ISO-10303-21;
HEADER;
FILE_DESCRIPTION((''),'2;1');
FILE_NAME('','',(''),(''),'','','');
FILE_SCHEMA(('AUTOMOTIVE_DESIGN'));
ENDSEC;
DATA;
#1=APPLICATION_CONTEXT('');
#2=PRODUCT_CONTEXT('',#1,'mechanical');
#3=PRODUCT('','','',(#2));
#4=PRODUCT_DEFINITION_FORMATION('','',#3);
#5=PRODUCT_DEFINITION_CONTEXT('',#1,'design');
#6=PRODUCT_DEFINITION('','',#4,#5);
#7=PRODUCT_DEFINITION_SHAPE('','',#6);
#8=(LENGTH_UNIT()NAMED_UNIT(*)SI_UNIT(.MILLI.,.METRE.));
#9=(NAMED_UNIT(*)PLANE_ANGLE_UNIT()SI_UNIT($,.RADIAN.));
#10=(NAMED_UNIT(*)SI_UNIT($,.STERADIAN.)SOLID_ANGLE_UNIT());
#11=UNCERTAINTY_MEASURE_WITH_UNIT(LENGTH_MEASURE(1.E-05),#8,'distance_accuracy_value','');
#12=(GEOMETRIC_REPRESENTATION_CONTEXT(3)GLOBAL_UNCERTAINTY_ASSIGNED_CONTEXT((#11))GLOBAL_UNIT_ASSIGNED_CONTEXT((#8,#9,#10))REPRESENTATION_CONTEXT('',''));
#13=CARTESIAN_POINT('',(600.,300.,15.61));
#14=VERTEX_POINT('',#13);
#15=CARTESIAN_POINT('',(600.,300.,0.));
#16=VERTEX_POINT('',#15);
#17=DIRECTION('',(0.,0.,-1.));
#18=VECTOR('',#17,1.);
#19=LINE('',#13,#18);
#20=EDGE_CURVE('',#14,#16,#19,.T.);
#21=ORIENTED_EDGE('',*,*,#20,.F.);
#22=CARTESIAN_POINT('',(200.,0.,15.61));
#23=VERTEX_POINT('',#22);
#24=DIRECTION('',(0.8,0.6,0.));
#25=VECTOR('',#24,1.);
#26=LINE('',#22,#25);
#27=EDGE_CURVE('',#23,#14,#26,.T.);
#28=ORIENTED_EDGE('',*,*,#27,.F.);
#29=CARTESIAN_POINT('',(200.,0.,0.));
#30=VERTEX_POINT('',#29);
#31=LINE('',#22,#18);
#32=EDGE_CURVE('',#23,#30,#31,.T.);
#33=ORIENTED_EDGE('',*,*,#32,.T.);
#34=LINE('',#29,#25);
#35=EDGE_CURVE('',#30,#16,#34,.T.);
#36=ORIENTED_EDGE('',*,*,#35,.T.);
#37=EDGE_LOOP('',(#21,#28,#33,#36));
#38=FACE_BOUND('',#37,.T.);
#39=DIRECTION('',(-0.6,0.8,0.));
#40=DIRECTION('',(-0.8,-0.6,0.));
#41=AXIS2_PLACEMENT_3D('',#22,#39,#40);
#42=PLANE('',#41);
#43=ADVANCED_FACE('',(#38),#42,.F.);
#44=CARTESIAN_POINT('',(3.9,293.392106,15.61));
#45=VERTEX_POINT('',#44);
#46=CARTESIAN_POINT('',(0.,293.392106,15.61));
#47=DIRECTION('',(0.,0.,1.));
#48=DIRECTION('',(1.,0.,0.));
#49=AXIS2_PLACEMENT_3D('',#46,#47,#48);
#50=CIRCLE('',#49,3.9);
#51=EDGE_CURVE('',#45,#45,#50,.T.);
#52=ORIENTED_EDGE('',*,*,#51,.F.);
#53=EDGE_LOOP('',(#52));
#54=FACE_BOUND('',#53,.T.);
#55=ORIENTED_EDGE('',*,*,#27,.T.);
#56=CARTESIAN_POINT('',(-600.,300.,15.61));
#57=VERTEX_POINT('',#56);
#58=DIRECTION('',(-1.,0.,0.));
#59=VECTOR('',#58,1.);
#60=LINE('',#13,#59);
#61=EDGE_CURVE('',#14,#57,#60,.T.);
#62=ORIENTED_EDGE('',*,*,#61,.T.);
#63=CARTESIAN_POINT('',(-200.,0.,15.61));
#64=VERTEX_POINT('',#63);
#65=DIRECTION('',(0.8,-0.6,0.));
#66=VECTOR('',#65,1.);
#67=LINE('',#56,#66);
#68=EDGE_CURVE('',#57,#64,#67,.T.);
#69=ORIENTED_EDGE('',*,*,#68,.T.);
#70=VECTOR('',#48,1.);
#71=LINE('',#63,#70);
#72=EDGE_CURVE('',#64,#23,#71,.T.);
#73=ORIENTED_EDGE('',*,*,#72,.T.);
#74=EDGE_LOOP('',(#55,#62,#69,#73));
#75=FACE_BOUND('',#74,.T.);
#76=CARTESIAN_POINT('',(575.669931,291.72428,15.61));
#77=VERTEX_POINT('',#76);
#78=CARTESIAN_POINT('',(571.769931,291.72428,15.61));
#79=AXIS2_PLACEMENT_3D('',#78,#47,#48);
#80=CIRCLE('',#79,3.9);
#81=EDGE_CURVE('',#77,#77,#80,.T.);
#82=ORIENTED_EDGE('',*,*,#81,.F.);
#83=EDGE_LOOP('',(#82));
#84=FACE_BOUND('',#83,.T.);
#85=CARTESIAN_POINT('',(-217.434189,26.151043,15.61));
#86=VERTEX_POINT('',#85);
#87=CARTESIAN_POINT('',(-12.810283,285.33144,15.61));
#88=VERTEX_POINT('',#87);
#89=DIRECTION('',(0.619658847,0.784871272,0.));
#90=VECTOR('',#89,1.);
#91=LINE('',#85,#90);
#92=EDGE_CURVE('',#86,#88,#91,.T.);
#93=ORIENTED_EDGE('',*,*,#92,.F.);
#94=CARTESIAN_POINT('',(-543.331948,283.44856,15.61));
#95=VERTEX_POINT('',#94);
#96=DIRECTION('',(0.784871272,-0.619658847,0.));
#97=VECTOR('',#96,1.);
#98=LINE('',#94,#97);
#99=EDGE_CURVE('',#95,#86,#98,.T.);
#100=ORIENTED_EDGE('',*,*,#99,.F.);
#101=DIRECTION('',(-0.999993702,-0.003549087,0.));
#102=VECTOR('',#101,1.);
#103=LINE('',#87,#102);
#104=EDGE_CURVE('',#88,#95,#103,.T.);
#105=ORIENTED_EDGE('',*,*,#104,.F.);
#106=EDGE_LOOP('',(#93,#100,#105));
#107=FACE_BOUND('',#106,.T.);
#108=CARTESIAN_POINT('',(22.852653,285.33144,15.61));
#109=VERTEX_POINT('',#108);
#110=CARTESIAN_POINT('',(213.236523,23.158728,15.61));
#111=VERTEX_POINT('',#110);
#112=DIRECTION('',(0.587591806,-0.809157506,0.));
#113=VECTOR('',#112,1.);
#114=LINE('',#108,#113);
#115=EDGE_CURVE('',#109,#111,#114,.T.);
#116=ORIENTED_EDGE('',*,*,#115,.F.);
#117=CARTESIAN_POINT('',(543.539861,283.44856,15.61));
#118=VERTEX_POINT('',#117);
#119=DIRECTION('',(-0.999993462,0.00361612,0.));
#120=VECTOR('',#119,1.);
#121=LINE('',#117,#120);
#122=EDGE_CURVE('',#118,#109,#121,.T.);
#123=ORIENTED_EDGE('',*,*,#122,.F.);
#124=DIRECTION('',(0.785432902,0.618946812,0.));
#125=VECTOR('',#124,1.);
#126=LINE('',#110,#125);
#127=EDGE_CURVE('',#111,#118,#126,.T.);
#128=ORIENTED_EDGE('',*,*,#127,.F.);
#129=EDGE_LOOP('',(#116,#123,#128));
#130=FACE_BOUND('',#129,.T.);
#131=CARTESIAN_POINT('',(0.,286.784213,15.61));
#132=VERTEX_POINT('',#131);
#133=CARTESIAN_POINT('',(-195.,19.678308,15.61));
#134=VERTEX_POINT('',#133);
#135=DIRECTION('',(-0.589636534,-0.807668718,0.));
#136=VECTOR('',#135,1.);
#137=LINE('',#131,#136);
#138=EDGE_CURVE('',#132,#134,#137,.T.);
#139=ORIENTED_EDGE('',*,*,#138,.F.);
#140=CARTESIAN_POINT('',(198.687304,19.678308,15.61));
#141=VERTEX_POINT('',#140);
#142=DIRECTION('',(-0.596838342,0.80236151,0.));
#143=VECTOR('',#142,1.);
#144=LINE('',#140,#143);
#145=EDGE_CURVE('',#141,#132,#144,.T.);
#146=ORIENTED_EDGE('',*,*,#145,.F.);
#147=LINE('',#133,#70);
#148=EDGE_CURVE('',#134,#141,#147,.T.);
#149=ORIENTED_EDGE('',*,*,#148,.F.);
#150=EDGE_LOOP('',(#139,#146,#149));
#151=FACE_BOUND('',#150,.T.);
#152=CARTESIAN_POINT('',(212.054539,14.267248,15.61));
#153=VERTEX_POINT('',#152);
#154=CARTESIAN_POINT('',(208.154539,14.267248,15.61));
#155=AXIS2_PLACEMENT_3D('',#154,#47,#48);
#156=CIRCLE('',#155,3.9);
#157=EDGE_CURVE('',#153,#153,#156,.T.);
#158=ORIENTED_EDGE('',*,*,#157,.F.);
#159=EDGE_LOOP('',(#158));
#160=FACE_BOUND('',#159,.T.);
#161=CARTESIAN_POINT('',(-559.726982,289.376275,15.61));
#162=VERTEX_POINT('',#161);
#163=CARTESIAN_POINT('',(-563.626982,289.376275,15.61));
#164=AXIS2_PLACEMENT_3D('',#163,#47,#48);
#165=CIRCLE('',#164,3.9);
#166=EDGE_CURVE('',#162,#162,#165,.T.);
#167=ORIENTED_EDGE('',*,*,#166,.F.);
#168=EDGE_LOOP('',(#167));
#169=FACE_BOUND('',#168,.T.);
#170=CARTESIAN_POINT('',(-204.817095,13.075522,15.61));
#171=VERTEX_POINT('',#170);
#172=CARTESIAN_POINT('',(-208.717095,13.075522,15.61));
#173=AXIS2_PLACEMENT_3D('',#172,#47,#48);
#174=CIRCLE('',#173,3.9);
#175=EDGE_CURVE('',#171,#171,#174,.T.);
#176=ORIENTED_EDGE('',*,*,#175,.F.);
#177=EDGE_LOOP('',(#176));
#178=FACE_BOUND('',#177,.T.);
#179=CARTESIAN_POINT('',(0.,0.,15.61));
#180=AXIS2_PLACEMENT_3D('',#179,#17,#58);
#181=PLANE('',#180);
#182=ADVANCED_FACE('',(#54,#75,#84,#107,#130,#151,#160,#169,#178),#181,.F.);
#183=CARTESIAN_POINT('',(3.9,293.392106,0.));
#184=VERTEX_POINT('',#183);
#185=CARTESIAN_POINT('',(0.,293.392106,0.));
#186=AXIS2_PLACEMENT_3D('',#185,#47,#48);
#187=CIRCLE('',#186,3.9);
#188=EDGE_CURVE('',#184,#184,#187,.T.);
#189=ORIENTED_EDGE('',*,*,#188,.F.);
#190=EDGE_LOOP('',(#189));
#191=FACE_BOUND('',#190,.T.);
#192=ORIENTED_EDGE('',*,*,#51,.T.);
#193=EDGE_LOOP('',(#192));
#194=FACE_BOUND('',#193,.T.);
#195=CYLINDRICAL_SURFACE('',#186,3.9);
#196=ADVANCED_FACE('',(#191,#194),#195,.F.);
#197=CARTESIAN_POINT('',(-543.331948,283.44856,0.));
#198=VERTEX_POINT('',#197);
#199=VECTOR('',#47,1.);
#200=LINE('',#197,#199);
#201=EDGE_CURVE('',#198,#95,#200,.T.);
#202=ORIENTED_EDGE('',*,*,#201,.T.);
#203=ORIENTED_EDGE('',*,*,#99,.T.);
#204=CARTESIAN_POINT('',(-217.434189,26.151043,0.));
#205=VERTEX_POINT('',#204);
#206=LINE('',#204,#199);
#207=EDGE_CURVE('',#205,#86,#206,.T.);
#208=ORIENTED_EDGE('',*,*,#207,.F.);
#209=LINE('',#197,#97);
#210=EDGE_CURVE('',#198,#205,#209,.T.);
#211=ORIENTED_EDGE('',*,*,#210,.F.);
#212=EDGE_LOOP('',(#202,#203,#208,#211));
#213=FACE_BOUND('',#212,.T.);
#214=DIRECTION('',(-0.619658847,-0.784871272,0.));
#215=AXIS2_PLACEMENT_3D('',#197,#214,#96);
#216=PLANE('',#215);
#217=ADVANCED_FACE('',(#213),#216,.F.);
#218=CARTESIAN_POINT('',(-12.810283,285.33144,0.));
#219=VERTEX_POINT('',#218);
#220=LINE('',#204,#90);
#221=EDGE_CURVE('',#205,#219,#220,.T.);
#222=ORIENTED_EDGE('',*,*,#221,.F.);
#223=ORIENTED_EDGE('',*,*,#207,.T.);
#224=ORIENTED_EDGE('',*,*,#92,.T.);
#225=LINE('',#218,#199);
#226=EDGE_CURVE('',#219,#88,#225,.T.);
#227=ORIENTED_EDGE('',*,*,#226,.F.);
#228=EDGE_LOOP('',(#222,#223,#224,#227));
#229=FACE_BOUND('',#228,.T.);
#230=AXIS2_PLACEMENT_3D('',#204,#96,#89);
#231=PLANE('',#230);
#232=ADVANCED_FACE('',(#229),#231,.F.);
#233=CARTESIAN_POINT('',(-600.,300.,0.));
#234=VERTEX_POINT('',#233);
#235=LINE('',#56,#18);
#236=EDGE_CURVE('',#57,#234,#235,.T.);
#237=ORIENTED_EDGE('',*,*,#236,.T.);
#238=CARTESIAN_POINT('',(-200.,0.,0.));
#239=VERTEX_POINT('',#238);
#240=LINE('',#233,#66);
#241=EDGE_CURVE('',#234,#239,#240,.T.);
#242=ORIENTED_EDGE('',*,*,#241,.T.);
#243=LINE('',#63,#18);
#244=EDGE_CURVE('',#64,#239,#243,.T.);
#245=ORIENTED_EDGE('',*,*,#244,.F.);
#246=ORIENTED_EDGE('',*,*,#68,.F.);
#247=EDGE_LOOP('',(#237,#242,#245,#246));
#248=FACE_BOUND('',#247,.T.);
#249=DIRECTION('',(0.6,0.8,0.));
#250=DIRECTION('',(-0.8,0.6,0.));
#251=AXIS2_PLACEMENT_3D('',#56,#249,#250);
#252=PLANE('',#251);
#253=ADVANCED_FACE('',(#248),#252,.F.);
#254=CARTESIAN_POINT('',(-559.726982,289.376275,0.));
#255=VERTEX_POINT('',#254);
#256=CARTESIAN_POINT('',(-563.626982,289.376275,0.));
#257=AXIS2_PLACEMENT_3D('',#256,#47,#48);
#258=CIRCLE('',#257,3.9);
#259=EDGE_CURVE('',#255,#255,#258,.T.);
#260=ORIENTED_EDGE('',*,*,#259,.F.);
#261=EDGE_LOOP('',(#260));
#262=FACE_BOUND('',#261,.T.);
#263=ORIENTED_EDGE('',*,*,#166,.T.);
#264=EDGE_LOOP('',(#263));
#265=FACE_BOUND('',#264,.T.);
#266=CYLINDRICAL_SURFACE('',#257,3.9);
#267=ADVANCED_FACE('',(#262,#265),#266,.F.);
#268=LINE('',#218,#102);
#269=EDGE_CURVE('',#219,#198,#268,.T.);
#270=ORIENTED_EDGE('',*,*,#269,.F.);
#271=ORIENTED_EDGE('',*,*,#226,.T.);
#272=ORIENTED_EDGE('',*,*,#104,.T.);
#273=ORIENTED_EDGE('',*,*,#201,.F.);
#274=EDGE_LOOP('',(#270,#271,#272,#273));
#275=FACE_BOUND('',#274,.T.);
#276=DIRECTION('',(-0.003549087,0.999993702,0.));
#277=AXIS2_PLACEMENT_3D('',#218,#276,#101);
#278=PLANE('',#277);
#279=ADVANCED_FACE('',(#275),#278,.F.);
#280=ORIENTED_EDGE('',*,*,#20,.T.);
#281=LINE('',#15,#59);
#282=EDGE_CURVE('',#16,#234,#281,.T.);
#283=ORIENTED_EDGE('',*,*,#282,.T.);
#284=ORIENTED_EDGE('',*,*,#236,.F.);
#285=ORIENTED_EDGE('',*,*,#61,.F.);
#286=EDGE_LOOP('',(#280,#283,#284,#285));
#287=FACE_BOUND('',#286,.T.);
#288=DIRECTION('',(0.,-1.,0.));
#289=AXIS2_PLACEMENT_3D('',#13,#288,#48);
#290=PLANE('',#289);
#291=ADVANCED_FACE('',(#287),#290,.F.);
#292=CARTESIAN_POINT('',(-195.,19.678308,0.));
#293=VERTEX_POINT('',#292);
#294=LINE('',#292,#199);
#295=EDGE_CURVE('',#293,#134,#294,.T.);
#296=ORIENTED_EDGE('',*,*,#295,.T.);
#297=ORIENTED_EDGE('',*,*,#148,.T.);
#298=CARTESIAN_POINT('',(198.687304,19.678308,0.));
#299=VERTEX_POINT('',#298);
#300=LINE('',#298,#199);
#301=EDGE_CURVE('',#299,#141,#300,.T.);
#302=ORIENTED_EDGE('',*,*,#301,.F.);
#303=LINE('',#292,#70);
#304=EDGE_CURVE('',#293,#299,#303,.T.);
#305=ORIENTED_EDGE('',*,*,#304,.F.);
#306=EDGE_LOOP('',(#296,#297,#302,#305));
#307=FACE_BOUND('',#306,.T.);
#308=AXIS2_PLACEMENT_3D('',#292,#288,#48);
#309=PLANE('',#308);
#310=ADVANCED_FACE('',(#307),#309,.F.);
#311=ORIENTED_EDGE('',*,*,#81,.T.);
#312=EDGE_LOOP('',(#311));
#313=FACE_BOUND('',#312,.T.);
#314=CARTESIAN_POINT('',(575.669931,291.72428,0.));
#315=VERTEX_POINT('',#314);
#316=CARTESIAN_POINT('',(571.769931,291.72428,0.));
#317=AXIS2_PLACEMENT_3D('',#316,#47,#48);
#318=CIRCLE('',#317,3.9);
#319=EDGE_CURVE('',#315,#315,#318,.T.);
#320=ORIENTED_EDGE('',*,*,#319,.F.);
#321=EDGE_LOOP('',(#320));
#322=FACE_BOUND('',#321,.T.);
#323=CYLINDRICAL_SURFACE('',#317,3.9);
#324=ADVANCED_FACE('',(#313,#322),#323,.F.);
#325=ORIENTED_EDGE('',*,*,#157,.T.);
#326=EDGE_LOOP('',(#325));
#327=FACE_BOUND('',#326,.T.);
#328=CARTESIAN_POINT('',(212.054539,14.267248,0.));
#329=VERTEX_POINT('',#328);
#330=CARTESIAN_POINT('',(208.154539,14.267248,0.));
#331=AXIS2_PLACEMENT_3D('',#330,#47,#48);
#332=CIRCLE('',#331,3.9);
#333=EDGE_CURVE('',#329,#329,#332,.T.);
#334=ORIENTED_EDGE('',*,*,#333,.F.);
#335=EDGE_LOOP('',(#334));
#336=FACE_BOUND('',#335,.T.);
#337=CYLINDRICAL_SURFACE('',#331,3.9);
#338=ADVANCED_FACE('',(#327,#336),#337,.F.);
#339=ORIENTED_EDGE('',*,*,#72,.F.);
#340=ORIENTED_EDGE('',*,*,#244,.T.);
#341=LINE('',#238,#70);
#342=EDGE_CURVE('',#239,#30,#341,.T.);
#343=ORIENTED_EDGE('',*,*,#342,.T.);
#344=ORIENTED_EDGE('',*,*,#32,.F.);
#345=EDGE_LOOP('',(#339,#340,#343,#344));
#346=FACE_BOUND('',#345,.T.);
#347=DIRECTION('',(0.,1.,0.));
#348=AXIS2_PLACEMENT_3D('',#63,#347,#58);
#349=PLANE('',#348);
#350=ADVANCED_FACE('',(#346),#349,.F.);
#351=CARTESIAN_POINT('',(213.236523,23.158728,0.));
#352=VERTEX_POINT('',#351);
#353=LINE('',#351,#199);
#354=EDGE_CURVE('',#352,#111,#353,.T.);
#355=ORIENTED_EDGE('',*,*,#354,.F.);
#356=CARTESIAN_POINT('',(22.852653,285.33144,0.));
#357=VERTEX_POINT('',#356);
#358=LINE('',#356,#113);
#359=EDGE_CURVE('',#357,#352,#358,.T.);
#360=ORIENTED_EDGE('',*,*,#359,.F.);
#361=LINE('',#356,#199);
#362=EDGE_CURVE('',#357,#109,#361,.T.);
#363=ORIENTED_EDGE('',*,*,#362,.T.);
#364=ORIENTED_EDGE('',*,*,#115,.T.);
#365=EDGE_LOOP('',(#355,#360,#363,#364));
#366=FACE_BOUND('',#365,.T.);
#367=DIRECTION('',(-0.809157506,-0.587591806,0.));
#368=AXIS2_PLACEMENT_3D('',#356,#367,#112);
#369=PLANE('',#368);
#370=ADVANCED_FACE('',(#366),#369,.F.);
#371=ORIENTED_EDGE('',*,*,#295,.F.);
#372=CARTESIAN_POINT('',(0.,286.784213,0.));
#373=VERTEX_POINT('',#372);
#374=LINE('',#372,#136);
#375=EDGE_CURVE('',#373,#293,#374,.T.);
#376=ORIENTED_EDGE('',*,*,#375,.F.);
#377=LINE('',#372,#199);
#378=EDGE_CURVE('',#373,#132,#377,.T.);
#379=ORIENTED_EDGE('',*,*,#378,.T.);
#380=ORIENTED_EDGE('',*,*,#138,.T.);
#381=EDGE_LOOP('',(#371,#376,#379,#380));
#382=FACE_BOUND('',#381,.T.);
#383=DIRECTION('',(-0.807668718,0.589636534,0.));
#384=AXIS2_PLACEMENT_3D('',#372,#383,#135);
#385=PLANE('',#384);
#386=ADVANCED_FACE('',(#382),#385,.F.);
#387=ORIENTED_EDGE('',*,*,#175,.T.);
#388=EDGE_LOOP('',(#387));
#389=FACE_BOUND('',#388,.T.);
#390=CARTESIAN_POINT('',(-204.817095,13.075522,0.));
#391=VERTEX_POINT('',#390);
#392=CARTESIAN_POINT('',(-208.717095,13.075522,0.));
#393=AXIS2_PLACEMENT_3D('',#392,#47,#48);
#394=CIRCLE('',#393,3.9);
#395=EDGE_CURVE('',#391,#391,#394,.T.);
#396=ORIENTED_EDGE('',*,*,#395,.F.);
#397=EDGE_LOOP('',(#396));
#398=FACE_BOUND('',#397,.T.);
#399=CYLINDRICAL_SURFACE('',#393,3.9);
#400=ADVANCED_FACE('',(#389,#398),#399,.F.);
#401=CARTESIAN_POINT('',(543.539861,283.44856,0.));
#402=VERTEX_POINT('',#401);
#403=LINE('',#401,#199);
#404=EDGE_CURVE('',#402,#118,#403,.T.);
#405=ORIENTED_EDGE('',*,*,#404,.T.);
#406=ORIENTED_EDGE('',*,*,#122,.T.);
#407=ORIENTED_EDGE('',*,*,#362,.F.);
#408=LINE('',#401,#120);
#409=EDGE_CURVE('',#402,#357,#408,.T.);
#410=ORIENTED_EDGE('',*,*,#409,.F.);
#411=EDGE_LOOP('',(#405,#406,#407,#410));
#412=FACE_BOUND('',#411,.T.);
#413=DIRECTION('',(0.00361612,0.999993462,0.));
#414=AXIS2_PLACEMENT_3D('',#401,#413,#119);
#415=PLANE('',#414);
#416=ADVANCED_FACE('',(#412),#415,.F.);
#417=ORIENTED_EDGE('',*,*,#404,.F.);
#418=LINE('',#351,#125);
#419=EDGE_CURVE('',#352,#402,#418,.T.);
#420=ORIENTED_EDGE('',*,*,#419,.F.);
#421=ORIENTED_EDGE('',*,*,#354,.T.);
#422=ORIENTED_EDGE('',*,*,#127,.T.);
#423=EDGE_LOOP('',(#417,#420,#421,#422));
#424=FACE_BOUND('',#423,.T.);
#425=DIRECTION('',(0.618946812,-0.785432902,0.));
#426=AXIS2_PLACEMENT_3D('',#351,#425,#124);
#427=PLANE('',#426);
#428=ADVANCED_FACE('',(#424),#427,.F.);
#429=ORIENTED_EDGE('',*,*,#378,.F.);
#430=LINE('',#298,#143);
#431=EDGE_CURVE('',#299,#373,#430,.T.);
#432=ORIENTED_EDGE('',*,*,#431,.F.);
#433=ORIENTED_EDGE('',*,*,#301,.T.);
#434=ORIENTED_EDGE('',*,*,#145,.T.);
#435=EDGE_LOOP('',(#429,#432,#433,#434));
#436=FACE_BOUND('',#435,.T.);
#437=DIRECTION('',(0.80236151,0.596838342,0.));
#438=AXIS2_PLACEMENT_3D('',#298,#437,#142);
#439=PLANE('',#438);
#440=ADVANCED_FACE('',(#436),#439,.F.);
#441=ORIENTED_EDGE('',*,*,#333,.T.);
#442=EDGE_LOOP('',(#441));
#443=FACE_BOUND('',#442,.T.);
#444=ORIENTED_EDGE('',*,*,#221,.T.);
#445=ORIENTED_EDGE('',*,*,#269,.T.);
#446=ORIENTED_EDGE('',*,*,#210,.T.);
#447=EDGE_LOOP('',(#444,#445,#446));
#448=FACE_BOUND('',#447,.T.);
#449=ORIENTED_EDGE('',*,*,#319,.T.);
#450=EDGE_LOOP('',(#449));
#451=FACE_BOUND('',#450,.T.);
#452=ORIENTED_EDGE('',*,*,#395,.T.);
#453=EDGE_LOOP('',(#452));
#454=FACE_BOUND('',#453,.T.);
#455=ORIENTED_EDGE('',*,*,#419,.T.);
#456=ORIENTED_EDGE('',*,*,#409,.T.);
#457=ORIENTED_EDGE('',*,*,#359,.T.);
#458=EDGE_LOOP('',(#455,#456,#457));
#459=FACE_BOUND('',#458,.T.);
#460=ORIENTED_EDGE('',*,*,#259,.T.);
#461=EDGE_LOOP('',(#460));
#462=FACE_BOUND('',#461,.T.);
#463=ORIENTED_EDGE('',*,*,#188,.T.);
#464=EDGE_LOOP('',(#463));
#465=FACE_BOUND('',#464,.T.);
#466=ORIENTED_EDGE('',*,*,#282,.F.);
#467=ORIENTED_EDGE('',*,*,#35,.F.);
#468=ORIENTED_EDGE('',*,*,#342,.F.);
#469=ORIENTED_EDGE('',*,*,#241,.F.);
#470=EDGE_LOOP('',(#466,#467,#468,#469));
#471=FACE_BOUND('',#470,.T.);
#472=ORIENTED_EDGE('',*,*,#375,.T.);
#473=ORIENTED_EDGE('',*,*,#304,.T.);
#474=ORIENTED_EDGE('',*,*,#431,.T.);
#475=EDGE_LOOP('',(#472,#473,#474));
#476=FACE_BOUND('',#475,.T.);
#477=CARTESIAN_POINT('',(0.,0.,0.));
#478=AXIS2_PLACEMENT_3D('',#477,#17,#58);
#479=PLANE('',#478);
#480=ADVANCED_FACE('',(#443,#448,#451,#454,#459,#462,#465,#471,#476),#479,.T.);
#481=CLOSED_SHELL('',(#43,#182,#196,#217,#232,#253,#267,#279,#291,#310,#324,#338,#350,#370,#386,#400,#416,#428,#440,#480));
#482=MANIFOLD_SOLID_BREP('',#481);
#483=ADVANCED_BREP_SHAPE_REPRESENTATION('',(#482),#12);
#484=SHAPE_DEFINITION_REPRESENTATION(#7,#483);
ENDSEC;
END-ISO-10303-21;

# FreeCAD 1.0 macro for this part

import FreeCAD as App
import Part
import Sketcher

V = App.Vector
Q = App.Units.Quantity


def add_polygon(sketch, points):
    """Adds a closed chain of lines whose ends are joined by coincident constraints."""
    first, n = sketch.GeometryCount, len(points)
    for a, b in zip(points, points[1:] + points[:1]):
        sketch.addGeometry(Part.LineSegment(App.Vector(*a, 0), App.Vector(*b, 0)), False)
    for i in range(n):
        sketch.addConstraint(Sketcher.Constraint("Coincident", first + i, 2, first + (i + 1) % n, 1))

doc = App.newDocument("Part")
body = doc.addObject("PartDesign::Body", "Body")

# Sketch on XY plane
sketch1 = body.newObject("Sketcher::SketchObject", "Sketch")
sketch1.AttachmentSupport = (doc.getObject("XY_Plane"), [""])
sketch1.MapMode = "FlatFace"
add_polygon(sketch1, [(-200, 0), (200, 0), (600, 300), (-600, 300)])  # lines 0-3
sketch1.addConstraint([
    Sketcher.Constraint("Horizontal", 0),
    Sketcher.Constraint("Horizontal", 2),
    Sketcher.Constraint("Symmetric", 0, 2, 3, 2, -1, 1),
    Sketcher.Constraint("Equal", 1, 3),
    Sketcher.Constraint("DistanceX", 0, 1, 0, 2, Q("400 mm")),
    Sketcher.Constraint("DistanceX", 2, 2, 2, 1, Q("1200 mm")),
    Sketcher.Constraint("Distance", 1, Q("500 mm")),
])
pad1 = body.newObject("PartDesign::Pad", "Pad")
pad1.Profile = sketch1
pad1.Length = 15.61

# Sketch on XY plane
sketch2 = body.newObject("Sketcher::SketchObject", "Sketch001")
sketch2.AttachmentSupport = (doc.getObject("XY_Plane"), [""])
sketch2.MapMode = "FlatFace"
sketch2.AttachmentOffset = App.Placement(V(0, 0, 15.61), App.Rotation())
add_polygon(sketch2, [(-195, 20), (199, 20), (0, 287)])  # lines 0-2
sketch2.addConstraint([
    Sketcher.Constraint("Horizontal", 0),
    Sketcher.Constraint("PointOnObject", 1, 2, -2),
    Sketcher.Constraint("DistanceX", 2, 2, -1, 1, Q("195 mm")),
    Sketcher.Constraint("Distance", 1, Q("332.899698 mm")),
    Sketcher.Constraint("DistanceX", 0, 1, 0, 2, Q("393.687304 mm")),
    Sketcher.Constraint("DistanceY", -1, 1, 0, 2, Q("19.678308 mm")),
])
pocket1 = body.newObject("PartDesign::Pocket", "Pocket")
pocket1.Profile = sketch2
pocket1.Type = "ThroughAll"

# Sketch on XY plane
sketch3 = body.newObject("Sketcher::SketchObject", "Sketch002")
sketch3.AttachmentSupport = (doc.getObject("XY_Plane"), [""])
sketch3.MapMode = "FlatFace"
sketch3.AttachmentOffset = App.Placement(V(0, 0, 15.61), App.Rotation())
add_polygon(sketch3, [(-217, 26), (-13, 285), (-543, 283)])  # lines 0-2
add_polygon(sketch3, [(544, 283), (23, 285), (213, 23)])  # lines 3-5
sketch3.addConstraint([
    Sketcher.Constraint("Perpendicular", 0, 2),
    Sketcher.Constraint("Horizontal", 0, 2, 3, 2),
    Sketcher.Constraint("Horizontal", 1, 2, 5, 2),
    Sketcher.Constraint("DistanceX", 1, 2, 3, 2, Q("566.184602 mm")),
    Sketcher.Constraint("Distance", 0, Q("330.220262 mm")),
    Sketcher.Constraint("Distance", 2, Q("415.224472 mm")),
    Sketcher.Constraint("Distance", 4, Q("324.007019 mm")),
    Sketcher.Constraint("Distance", 5, Q("420.536671 mm")),
    Sketcher.Constraint("DistanceY", -1, 1, 0, 2, Q("285.33144 mm")),
    Sketcher.Constraint("DistanceX", 1, 2, -1, 1, Q("543.331948 mm")),
    Sketcher.Constraint("DistanceY", -1, 1, 1, 2, Q("283.44856 mm")),
    Sketcher.Constraint("DistanceX", -1, 1, 5, 2, Q("543.539861 mm")),
])
pocket2 = body.newObject("PartDesign::Pocket", "Pocket001")
pocket2.Profile = sketch3
pocket2.Type = "ThroughAll"

# Sketch on XY plane
sketch4 = body.newObject("Sketcher::SketchObject", "Sketch003")
sketch4.AttachmentSupport = (doc.getObject("XY_Plane"), [""])
sketch4.MapMode = "FlatFace"
sketch4.AttachmentOffset = App.Placement(V(0, 0, 15.61), App.Rotation())
sketch4.addGeometry([
    Part.Circle(V(-563.6, 289.4, 0), V(0, 0, 1), 3.9),  # 0
    Part.Circle(V(0, 293.4, 0), V(0, 0, 1), 3.9),  # 1
    Part.Circle(V(571.8, 291.7, 0), V(0, 0, 1), 3.9),  # 2
    Part.Circle(V(208.2, 14.3, 0), V(0, 0, 1), 3.9),  # 3
    Part.Circle(V(-208.7, 13.1, 0), V(0, 0, 1), 3.9),  # 4
], False)
sketch4.addConstraint([
    Sketcher.Constraint("Equal", 0, 1),
    Sketcher.Constraint("Equal", 1, 2),
    Sketcher.Constraint("Equal", 2, 3),
    Sketcher.Constraint("Equal", 3, 4),
    Sketcher.Constraint("PointOnObject", 1, 3, -2),
    Sketcher.Constraint("Diameter", 0, Q("7.8 mm")),
    Sketcher.Constraint("DistanceX", -1, 1, 2, 3, Q("571.769931 mm")),
    Sketcher.Constraint("DistanceY", -1, 1, 2, 3, Q("291.72428 mm")),
    Sketcher.Constraint("DistanceX", -1, 1, 3, 3, Q("208.154539 mm")),
    Sketcher.Constraint("DistanceY", -1, 1, 4, 3, Q("13.075522 mm")),
    Sketcher.Constraint("DistanceY", 0, 3, 1, 3, Q("4.015832 mm")),
    Sketcher.Constraint("DistanceY", 3, 3, 1, 3, Q("279.124859 mm")),
    Sketcher.Constraint("DistanceX", 0, 3, 3, 3, Q("771.781522 mm")),
    Sketcher.Constraint("DistanceY", -1, 1, 0, 3, Q("289.376275 mm")),
    Sketcher.Constraint("DistanceX", 4, 3, -1, 1, Q("208.717095 mm")),
])
pocket3 = body.newObject("PartDesign::Pocket", "Pocket002")
pocket3.Profile = sketch4
pocket3.Type = "ThroughAll"

doc.recompute()
